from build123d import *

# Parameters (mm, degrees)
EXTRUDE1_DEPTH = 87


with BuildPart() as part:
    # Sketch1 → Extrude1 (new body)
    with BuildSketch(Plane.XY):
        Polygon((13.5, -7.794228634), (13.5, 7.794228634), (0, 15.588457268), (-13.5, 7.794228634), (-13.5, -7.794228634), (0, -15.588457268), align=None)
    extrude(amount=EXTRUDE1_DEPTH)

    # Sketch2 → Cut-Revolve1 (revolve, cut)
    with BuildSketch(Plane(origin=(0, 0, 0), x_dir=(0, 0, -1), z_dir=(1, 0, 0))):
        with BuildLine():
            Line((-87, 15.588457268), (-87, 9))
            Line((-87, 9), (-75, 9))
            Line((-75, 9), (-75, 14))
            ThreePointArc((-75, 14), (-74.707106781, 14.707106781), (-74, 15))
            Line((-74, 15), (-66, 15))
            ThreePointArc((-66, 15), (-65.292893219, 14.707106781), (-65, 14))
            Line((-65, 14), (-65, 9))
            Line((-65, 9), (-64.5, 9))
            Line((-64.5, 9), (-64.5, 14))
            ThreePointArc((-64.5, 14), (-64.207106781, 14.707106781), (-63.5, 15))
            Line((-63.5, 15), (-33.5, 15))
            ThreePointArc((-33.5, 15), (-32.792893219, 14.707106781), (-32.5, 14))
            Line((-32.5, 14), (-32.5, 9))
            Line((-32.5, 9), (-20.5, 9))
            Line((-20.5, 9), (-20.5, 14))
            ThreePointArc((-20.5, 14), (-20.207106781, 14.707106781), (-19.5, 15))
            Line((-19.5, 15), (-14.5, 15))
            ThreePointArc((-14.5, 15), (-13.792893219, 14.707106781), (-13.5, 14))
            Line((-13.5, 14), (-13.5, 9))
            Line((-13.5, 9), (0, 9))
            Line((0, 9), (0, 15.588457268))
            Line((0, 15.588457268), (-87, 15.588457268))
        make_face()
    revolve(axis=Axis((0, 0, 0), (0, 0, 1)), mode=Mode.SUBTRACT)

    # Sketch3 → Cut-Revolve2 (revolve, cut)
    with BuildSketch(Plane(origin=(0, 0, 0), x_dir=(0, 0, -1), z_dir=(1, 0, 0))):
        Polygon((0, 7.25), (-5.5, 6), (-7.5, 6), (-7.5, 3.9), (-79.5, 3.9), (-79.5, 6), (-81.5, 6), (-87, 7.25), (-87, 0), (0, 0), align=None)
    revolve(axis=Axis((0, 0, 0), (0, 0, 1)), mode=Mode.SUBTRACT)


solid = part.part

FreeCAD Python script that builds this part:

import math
import FreeCAD as App
import Part
import Sketcher
Q = App.Units.Quantity


def add_polygon(sketch, points):
    """Adds a closed chain of lines whose ends are joined by coincident constraints."""
    first, n = sketch.GeometryCount, len(points)
    for a, b in zip(points, points[1:] + points[:1]):
        sketch.addGeometry(Part.LineSegment(App.Vector(*a, 0), App.Vector(*b, 0)), False)
    for i in range(n):
        sketch.addConstraint(Sketcher.Constraint("Coincident", first + i, 2, first + (i + 1) % n, 1))

doc = App.newDocument("Part")
body = doc.addObject("PartDesign::Body", "Body")

# Sketch on XY plane
sketch1 = body.newObject("Sketcher::SketchObject", "Sketch")
sketch1.AttachmentSupport = (doc.getObject("XY_Plane"), [""])
sketch1.MapMode = "FlatFace"
add_polygon(sketch1, [(14, -8), (14, 8), (0, 16), (-14, 8), (-14, -8), (0, -16)])  # lines 0-5
sketch1.addConstraint(Sketcher.Constraint("Vertical", 0))
sketch1.addConstraint(Sketcher.Constraint("Vertical", 3))
sketch1.addConstraint(Sketcher.Constraint("Symmetric", 0, 2, 3, 2, -1, 1))
sketch1.addConstraint(Sketcher.Constraint("Symmetric", 1, 2, 4, 2, -1, 1))
sketch1.addConstraint(Sketcher.Constraint("PointOnObject", 1, 2, -2))
sketch1.addConstraint(Sketcher.Constraint("Parallel", 2, 5))
sketch1.addConstraint(Sketcher.Constraint("Horizontal", 0, 2, 2, 2))
sketch1.addConstraint(Sketcher.Constraint("Angle", 1, Q("150 deg")))
sketch1.addConstraint(Sketcher.Constraint("DistanceX", 2, 2, 0, 2, 27.0))
sketch1.addConstraint(Sketcher.Constraint("DistanceY", 0, 1, 0, 2, 15.588457))
pad1 = body.newObject("PartDesign::Pad", "Pad")
pad1.Profile = sketch1
pad1.Length = 87

# Sketch on YZ plane
sketch2 = body.newObject("Sketcher::SketchObject", "Sketch001")
sketch2.AttachmentSupport = (doc.getObject("YZ_Plane"), [""])
sketch2.MapMode = "FlatFace"
sketch2.addGeometry(Part.LineSegment(App.Vector(15.6, 87, 0), App.Vector(9, 87, 0)), False)
sketch2.addGeometry(Part.LineSegment(App.Vector(9, 87, 0), App.Vector(9, 75, 0)), False)
sketch2.addGeometry(Part.LineSegment(App.Vector(9, 75, 0), App.Vector(14, 75, 0)), False)
sketch2.addGeometry(Part.ArcOfCircle(Part.Circle(App.Vector(14, 74, 0), App.Vector(0, 0, 1), 1), math.radians(0), math.radians(90)), False)
sketch2.addGeometry(Part.LineSegment(App.Vector(15, 74, 0), App.Vector(15, 66, 0)), False)
sketch2.addGeometry(Part.ArcOfCircle(Part.Circle(App.Vector(14, 66, 0), App.Vector(0, 0, 1), 1), math.radians(-90), math.radians(0)), False)
sketch2.addGeometry(Part.LineSegment(App.Vector(14, 65, 0), App.Vector(9, 65, 0)), False)
sketch2.addGeometry(Part.LineSegment(App.Vector(9, 65, 0), App.Vector(9, 64.5, 0)), False)
sketch2.addGeometry(Part.LineSegment(App.Vector(9, 64.5, 0), App.Vector(14, 64.5, 0)), False)
sketch2.addGeometry(Part.ArcOfCircle(Part.Circle(App.Vector(14, 63.5, 0), App.Vector(0, 0, 1), 1), math.radians(0), math.radians(90)), False)
sketch2.addGeometry(Part.LineSegment(App.Vector(15, 63.5, 0), App.Vector(15, 33.5, 0)), False)
sketch2.addGeometry(Part.ArcOfCircle(Part.Circle(App.Vector(14, 33.5, 0), App.Vector(0, 0, 1), 1), math.radians(-90), math.radians(0)), False)
sketch2.addGeometry(Part.LineSegment(App.Vector(14, 32.5, 0), App.Vector(9, 32.5, 0)), False)
sketch2.addGeometry(Part.LineSegment(App.Vector(9, 32.5, 0), App.Vector(9, 20.5, 0)), False)
sketch2.addGeometry(Part.LineSegment(App.Vector(9, 20.5, 0), App.Vector(14, 20.5, 0)), False)
sketch2.addGeometry(Part.ArcOfCircle(Part.Circle(App.Vector(14, 19.5, 0), App.Vector(0, 0, 1), 1), math.radians(0), math.radians(90)), False)
sketch2.addGeometry(Part.LineSegment(App.Vector(15, 19.5, 0), App.Vector(15, 14.5, 0)), False)
sketch2.addGeometry(Part.ArcOfCircle(Part.Circle(App.Vector(14, 14.5, 0), App.Vector(0, 0, 1), 1), math.radians(-90), math.radians(0)), False)
sketch2.addGeometry(Part.LineSegment(App.Vector(14, 13.5, 0), App.Vector(9, 13.5, 0)), False)
sketch2.addGeometry(Part.LineSegment(App.Vector(9, 13.5, 0), App.Vector(9, 0, 0)), False)
sketch2.addGeometry(Part.LineSegment(App.Vector(9, 0, 0), App.Vector(15.6, 0, 0)), False)
sketch2.addGeometry(Part.LineSegment(App.Vector(15.6, 0, 0), App.Vector(15.6, 87, 0)), False)
sketch2.addConstraint(Sketcher.Constraint("Coincident", 0, 2, 1, 1))
sketch2.addConstraint(Sketcher.Constraint("Coincident", 1, 2, 2, 1))
sketch2.addConstraint(Sketcher.Constraint("Tangent", 2, 2, 3, 2))
sketch2.addConstraint(Sketcher.Constraint("Tangent", 3, 1, 4, 1))
sketch2.addConstraint(Sketcher.Constraint("Tangent", 4, 2, 5, 2))
sketch2.addConstraint(Sketcher.Constraint("Tangent", 5, 1, 6, 1))
sketch2.addConstraint(Sketcher.Constraint("Coincident", 6, 2, 7, 1))
sketch2.addConstraint(Sketcher.Constraint("Coincident", 7, 2, 8, 1))
sketch2.addConstraint(Sketcher.Constraint("Tangent", 8, 2, 9, 2))
sketch2.addConstraint(Sketcher.Constraint("Tangent", 9, 1, 10, 1))
sketch2.addConstraint(Sketcher.Constraint("Tangent", 10, 2, 11, 2))
sketch2.addConstraint(Sketcher.Constraint("Tangent", 11, 1, 12, 1))
sketch2.addConstraint(Sketcher.Constraint("Coincident", 12, 2, 13, 1))
sketch2.addConstraint(Sketcher.Constraint("Coincident", 13, 2, 14, 1))
sketch2.addConstraint(Sketcher.Constraint("Tangent", 14, 2, 15, 2))
sketch2.addConstraint(Sketcher.Constraint("Tangent", 15, 1, 16, 1))
sketch2.addConstraint(Sketcher.Constraint("Tangent", 16, 2, 17, 2))
sketch2.addConstraint(Sketcher.Constraint("Tangent", 17, 1, 18, 1))
sketch2.addConstraint(Sketcher.Constraint("Coincident", 18, 2, 19, 1))
sketch2.addConstraint(Sketcher.Constraint("Coincident", 19, 2, 20, 1))
sketch2.addConstraint(Sketcher.Constraint("Coincident", 20, 2, 21, 1))
sketch2.addConstraint(Sketcher.Constraint("Coincident", 21, 2, 0, 1))
sketch2.addConstraint(Sketcher.Constraint("Horizontal", 0))
sketch2.addConstraint(Sketcher.Constraint("Vertical", 1))
sketch2.addConstraint(Sketcher.Constraint("Horizontal", 2))
sketch2.addConstraint(Sketcher.Constraint("Vertical", 4))
sketch2.addConstraint(Sketcher.Constraint("Horizontal", 6))
sketch2.addConstraint(Sketcher.Constraint("Vertical", 7))
sketch2.addConstraint(Sketcher.Constraint("Horizontal", 8))
sketch2.addConstraint(Sketcher.Constraint("Vertical", 10))
sketch2.addConstraint(Sketcher.Constraint("Horizontal", 12))
sketch2.addConstraint(Sketcher.Constraint("Vertical", 13))
sketch2.addConstraint(Sketcher.Constraint("Horizontal", 14))
sketch2.addConstraint(Sketcher.Constraint("Vertical", 16))
sketch2.addConstraint(Sketcher.Constraint("Horizontal", 18))
sketch2.addConstraint(Sketcher.Constraint("Vertical", 19))
sketch2.addConstraint(Sketcher.Constraint("Horizontal", 20))
sketch2.addConstraint(Sketcher.Constraint("Vertical", 21))
sketch2.addConstraint(Sketcher.Constraint("Equal", 3, 5))
sketch2.addConstraint(Sketcher.Constraint("Equal", 5, 9))
sketch2.addConstraint(Sketcher.Constraint("Equal", 9, 11))
sketch2.addConstraint(Sketcher.Constraint("Equal", 11, 15))
sketch2.addConstraint(Sketcher.Constraint("Equal", 15, 17))
sketch2.addConstraint(Sketcher.Constraint("PointOnObject", 19, 2, -1))
sketch2.addConstraint(Sketcher.Constraint("Vertical", 5, 3, 9, 3))
sketch2.addConstraint(Sketcher.Constraint("Vertical", 11, 3, 15, 3))
sketch2.addConstraint(Sketcher.Constraint("Vertical", 1, 2, 6, 2))
sketch2.addConstraint(Sketcher.Constraint("Vertical", 7, 2, 12, 2))
sketch2.addConstraint(Sketcher.Constraint("Vertical", 13, 2, 18, 2))
sketch2.addConstraint(Sketcher.Constraint("Equal", 1, 13))
sketch2.addConstraint(Sketcher.Constraint("Equal", 18, 16))
sketch2.addConstraint(Sketcher.Constraint("Radius", 3, 1.0))
sketch2.addConstraint(Sketcher.Constraint("DistanceX", 2, 1, 2, 2, 5.0))
sketch2.addConstraint(Sketcher.Constraint("DistanceY", 1, 2, 1, 1, 12.0))
sketch2.addConstraint(Sketcher.Constraint("DistanceY", 4, 2, 4, 1, 8.0))
sketch2.addConstraint(Sketcher.Constraint("DistanceY", 10, 2, 10, 1, 30.0))
sketch2.addConstraint(Sketcher.Constraint("DistanceY", 21, 1, 21, 2, 87.0))
sketch2.addConstraint(Sketcher.Constraint("DistanceY", 7, 2, 7, 1, 0.5))
sketch2.addConstraint(Sketcher.Constraint("DistanceX", -1, 1, 3, 3, 14.0))
sketch2.addConstraint(Sketcher.Constraint("DistanceX", 0, 2, 0, 1, 6.588457))
groove = body.newObject("PartDesign::Groove", "Groove")
groove.Profile = sketch2
groove.ReferenceAxis = (sketch2, ["V_Axis"])
groove.Angle = 360

# Sketch on YZ plane
sketch3 = body.newObject("Sketcher::SketchObject", "Sketch002")
sketch3.AttachmentSupport = (doc.getObject("YZ_Plane"), [""])
sketch3.MapMode = "FlatFace"
add_polygon(sketch3, [(7.2, 0), (6, 5.5), (6, 7.5), (3.9, 7.5), (3.9, 79.5), (6, 79.5), (6, 81.5), (7.2, 87), (0, 87), (0, 0)])  # lines 0-9
sketch3.addConstraint(Sketcher.Constraint("Vertical", 1))
sketch3.addConstraint(Sketcher.Constraint("Horizontal", 2))
sketch3.addConstraint(Sketcher.Constraint("Vertical", 3))
sketch3.addConstraint(Sketcher.Constraint("Horizontal", 4))
sketch3.addConstraint(Sketcher.Constraint("Vertical", 5))
sketch3.addConstraint(Sketcher.Constraint("Horizontal", 7))
sketch3.addConstraint(Sketcher.Constraint("Vertical", 8))
sketch3.addConstraint(Sketcher.Constraint("Horizontal", 9))
sketch3.addConstraint(Sketcher.Constraint("Coincident", 8, 2, -1, 1))
sketch3.addConstraint(Sketcher.Constraint("Vertical", 1, 2, 4, 2))
sketch3.addConstraint(Sketcher.Constraint("Vertical", 6, 2, 9, 2))
sketch3.addConstraint(Sketcher.Constraint("Equal", 1, 5))
sketch3.addConstraint(Sketcher.Constraint("Equal", 0, 6))
sketch3.addConstraint(Sketcher.Constraint("DistanceY", 1, 1, 1, 2, 2.0))
sketch3.addConstraint(Sketcher.Constraint("DistanceY", 3, 1, 3, 2, 72.0))
sketch3.addConstraint(Sketcher.Constraint("DistanceY", 8, 2, 8, 1, 87.0))
sketch3.addConstraint(Sketcher.Constraint("DistanceX", 2, 2, 2, 1, 2.1))
sketch3.addConstraint(Sketcher.Constraint("DistanceX", -1, 1, 0, 2, 6.0))
sketch3.addConstraint(Sketcher.Constraint("DistanceX", 7, 2, 7, 1, 7.25))
groove2 = body.newObject("PartDesign::Groove", "Groove001")
groove2.Profile = sketch3
groove2.ReferenceAxis = (sketch3, ["V_Axis"])
groove2.Angle = 360

doc.recompute()
